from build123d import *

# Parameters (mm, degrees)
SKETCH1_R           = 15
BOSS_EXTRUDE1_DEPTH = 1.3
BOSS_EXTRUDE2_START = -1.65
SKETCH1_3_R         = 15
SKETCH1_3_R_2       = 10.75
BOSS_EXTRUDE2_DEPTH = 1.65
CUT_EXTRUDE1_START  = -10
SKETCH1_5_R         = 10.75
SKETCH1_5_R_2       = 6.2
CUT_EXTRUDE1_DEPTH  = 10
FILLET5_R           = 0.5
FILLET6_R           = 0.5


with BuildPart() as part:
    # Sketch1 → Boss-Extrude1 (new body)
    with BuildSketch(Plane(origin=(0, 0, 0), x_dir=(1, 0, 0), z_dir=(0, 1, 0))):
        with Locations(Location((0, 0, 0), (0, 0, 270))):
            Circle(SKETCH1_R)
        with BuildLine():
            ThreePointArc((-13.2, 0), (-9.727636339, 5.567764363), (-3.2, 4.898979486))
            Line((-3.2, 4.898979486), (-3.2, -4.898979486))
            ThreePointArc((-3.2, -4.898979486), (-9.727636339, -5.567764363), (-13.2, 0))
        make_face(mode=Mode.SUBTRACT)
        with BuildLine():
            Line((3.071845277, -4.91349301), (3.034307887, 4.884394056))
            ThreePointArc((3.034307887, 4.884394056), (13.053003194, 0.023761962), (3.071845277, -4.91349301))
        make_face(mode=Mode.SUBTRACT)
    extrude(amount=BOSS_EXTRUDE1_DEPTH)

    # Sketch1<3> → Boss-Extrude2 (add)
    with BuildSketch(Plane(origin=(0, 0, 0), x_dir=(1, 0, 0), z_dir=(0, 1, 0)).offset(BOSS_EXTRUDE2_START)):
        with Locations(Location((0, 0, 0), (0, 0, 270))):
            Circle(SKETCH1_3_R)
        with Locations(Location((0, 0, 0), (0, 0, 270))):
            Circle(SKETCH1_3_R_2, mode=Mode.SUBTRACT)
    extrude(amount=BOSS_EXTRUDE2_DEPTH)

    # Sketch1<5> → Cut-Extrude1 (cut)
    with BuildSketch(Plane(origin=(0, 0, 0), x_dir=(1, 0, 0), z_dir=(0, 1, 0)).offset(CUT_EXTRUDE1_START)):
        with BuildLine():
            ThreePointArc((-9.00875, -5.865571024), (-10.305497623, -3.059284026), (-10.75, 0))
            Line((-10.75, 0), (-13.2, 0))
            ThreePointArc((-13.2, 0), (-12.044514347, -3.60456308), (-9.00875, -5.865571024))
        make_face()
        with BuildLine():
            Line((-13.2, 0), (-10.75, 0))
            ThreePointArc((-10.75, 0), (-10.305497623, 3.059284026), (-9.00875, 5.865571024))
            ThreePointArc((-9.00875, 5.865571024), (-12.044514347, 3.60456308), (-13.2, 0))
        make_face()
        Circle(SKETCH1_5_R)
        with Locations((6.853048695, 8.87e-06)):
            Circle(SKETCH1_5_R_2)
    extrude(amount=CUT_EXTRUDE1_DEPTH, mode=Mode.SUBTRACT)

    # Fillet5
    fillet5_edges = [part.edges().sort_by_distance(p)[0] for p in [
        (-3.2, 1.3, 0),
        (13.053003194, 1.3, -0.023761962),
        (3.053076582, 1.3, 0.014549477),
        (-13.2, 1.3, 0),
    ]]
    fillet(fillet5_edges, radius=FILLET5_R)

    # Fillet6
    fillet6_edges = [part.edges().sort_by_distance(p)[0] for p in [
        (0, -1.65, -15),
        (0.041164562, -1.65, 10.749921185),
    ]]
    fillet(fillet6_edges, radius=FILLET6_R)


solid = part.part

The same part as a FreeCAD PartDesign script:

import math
import FreeCAD as App
import Part
import Sketcher
Q = App.Units.Quantity


def edges_at(feature, points):
    """Names of the edges that pass closest to the given points."""
    edges = feature.Shape.Edges
    near = lambda p: min(range(len(edges)), key=lambda i: edges[i].distToShape(Part.Vertex(*p))[0])
    return sorted({f"Edge{near(p) + 1}" for p in points})

doc = App.newDocument("Part")
body = doc.addObject("PartDesign::Body", "Body")

# Sketch on XZ plane
sketch1 = body.newObject("Sketcher::SketchObject", "Sketch")
sketch1.AttachmentSupport = (doc.getObject("XZ_Plane"), [""])
sketch1.MapMode = "FlatFace"
sketch1.addGeometry(Part.Circle(App.Vector(0, 0, 0), App.Vector(0, 0, 1), 15), False)
sketch1.addGeometry(Part.ArcOfCircle(Part.Circle(App.Vector(-7, 0, 0), App.Vector(0, 0, 1), 6), math.radians(52), math.radians(180)), False)
sketch1.addGeometry(Part.ArcOfCircle(Part.Circle(App.Vector(-7, 0, 0), App.Vector(0, 0, 1), 6), math.radians(180), math.radians(308)), False)
sketch1.addGeometry(Part.LineSegment(App.Vector(-3, -5, 0), App.Vector(-3, 5, 0)), False)
sketch1.addGeometry(Part.ArcOfCircle(Part.Circle(App.Vector(7, 0, 0), App.Vector(0, 0, 1), 6), math.radians(-128), math.radians(128)), False)
sketch1.addGeometry(Part.LineSegment(App.Vector(3, 5, 0), App.Vector(3, -5, 0)), False)
sketch1.addConstraint(Sketcher.Constraint("Tangent", 1, 2, 2, 1))
sketch1.addConstraint(Sketcher.Constraint("Coincident", 2, 2, 3, 1))
sketch1.addConstraint(Sketcher.Constraint("Coincident", 3, 2, 1, 1))
sketch1.addConstraint(Sketcher.Constraint("Coincident", 4, 1, 5, 2))
sketch1.addConstraint(Sketcher.Constraint("Coincident", 5, 1, 4, 2))
sketch1.addConstraint(Sketcher.Constraint("Vertical", 3))
sketch1.addConstraint(Sketcher.Constraint("Coincident", 0, 3, -1, 1))
sketch1.addConstraint(Sketcher.Constraint("Equal", 1, 2))
sketch1.addConstraint(Sketcher.Constraint("Equal", 2, 4))
sketch1.addConstraint(Sketcher.Constraint("PointOnObject", 1, 3, -1))
sketch1.addConstraint(Sketcher.Constraint("PointOnObject", 1, 2, -1))
sketch1.addConstraint(Sketcher.Constraint("Diameter", 0, Q("30 mm")))
sketch1.addConstraint(Sketcher.Constraint("Radius", 1, Q("6.2 mm")))
sketch1.addConstraint(Sketcher.Constraint("DistanceX", 1, 3, -1, 1, Q("7 mm")))
sketch1.addConstraint(Sketcher.Constraint("DistanceX", 1, 2, 2, 2, Q("10 mm")))
sketch1.addConstraint(Sketcher.Constraint("DistanceY", 4, 3, 5, 1, Q("4.913502 mm")))
sketch1.addConstraint(Sketcher.Constraint("Distance", 5, Q("9.797959 mm")))
sketch1.addConstraint(Sketcher.Constraint("DistanceX", -1, 1, 4, 3, Q("6.853049 mm")))
sketch1.addConstraint(Sketcher.Constraint("DistanceY", 2, 2, 4, 3, Q("4.898971 mm")))
pad1 = body.newObject("PartDesign::Pad", "Pad")
pad1.Profile = sketch1
pad1.Length = 1.3
pad1.Reversed = True

# Sketch on XZ plane
sketch2 = body.newObject("Sketcher::SketchObject", "Sketch001")
sketch2.AttachmentSupport = (doc.getObject("XZ_Plane"), [""])
sketch2.MapMode = "FlatFace"
sketch2.AttachmentOffset = App.Placement(App.Vector(0, 0, 1.65), App.Rotation())
sketch2.addGeometry(Part.Circle(App.Vector(0, 0, 0), App.Vector(0, 0, 1), 15), False)
sketch2.addGeometry(Part.Circle(App.Vector(0, 0, 0), App.Vector(0, 0, 1), 11), False)
sketch2.addConstraint(Sketcher.Constraint("Coincident", 0, 3, -1, 1))
sketch2.addConstraint(Sketcher.Constraint("Coincident", 1, 3, -1, 1))
sketch2.addConstraint(Sketcher.Constraint("Diameter", 0, Q("30 mm")))
sketch2.addConstraint(Sketcher.Constraint("Diameter", 1, Q("21.5 mm")))
pad2 = body.newObject("PartDesign::Pad", "Pad001")
pad2.Profile = sketch2
pad2.Length = 1.65
pad2.Reversed = True

# Sketch on XZ plane
sketch3 = body.newObject("Sketcher::SketchObject", "Sketch002")
sketch3.AttachmentSupport = (doc.getObject("XZ_Plane"), [""])
sketch3.MapMode = "FlatFace"
sketch3.AttachmentOffset = App.Placement(App.Vector(0, 0, 10), App.Rotation())
sketch3.addGeometry(Part.ArcOfCircle(Part.Circle(App.Vector(0, 0, 0), App.Vector(0, 0, 1), 11), math.radians(-147), math.radians(-33)), False)
sketch3.addGeometry(Part.ArcOfCircle(Part.Circle(App.Vector(-7, 0, 0), App.Vector(0, 0, 1), 6), math.radians(-180), math.radians(-109)), False)
sketch3.addGeometry(Part.ArcOfCircle(Part.Circle(App.Vector(-7, 0, 0), App.Vector(0, 0, 1), 6), math.radians(109), math.radians(180)), False)
sketch3.addGeometry(Part.ArcOfCircle(Part.Circle(App.Vector(0, 0, 0), App.Vector(0, 0, 1), 11), math.radians(33), math.radians(147)), False)
sketch3.addGeometry(Part.ArcOfCircle(Part.Circle(App.Vector(7, 0, 0), App.Vector(0, 0, 1), 6), math.radians(-69), math.radians(69)), False)
sketch3.addConstraint(Sketcher.Constraint("Coincident", 0, 1, 1, 2))
sketch3.addConstraint(Sketcher.Constraint("Tangent", 1, 1, 2, 2))
sketch3.addConstraint(Sketcher.Constraint("Coincident", 2, 1, 3, 2))
sketch3.addConstraint(Sketcher.Constraint("Coincident", 3, 1, 4, 2))
sketch3.addConstraint(Sketcher.Constraint("Coincident", 4, 1, 0, 2))
sketch3.addConstraint(Sketcher.Constraint("Coincident", 0, 3, -1, 1))
sketch3.addConstraint(Sketcher.Constraint("Coincident", 3, 3, -1, 1))
sketch3.addConstraint(Sketcher.Constraint("Equal", 1, 2))
sketch3.addConstraint(Sketcher.Constraint("Equal", 0, 3))
sketch3.addConstraint(Sketcher.Constraint("Equal", 2, 4))
sketch3.addConstraint(Sketcher.Constraint("PointOnObject", 1, 3, -1))
sketch3.addConstraint(Sketcher.Constraint("PointOnObject", 1, 1, -1))
sketch3.addConstraint(Sketcher.Constraint("Radius", 1, Q("6.2 mm")))
sketch3.addConstraint(Sketcher.Constraint("Radius", 0, Q("10.75 mm")))
sketch3.addConstraint(Sketcher.Constraint("DistanceX", 1, 3, -1, 1, Q("7 mm")))
sketch3.addConstraint(Sketcher.Constraint("DistanceX", 0, 1, 4, 3, Q("15.861799 mm")))
sketch3.addConstraint(Sketcher.Constraint("DistanceY", 4, 1, -1, 1, Q("5.796429 mm")))
pocket1 = body.newObject("PartDesign::Pocket", "Pocket")
pocket1.Profile = sketch3
pocket1.Length = 10
doc.recompute()

fillet = body.newObject("PartDesign::Fillet", "Fillet")
fillet.Base = (pocket1, edges_at(pocket1, [
    (-3.2, 1.3, 0),
    (13.053, 1.3, -0.024),
    (3.053, 1.3, 0.015),
    (-9.728, 1.3, 5.568),
]))
fillet.Radius = 0.5
doc.recompute()

fillet2 = body.newObject("PartDesign::Fillet", "Fillet001")
fillet2.Base = (fillet, edges_at(fillet, [(0, -1.65, -15), (0.041, -1.65, 10.75)]))
fillet2.Radius = 0.5

doc.recompute()
